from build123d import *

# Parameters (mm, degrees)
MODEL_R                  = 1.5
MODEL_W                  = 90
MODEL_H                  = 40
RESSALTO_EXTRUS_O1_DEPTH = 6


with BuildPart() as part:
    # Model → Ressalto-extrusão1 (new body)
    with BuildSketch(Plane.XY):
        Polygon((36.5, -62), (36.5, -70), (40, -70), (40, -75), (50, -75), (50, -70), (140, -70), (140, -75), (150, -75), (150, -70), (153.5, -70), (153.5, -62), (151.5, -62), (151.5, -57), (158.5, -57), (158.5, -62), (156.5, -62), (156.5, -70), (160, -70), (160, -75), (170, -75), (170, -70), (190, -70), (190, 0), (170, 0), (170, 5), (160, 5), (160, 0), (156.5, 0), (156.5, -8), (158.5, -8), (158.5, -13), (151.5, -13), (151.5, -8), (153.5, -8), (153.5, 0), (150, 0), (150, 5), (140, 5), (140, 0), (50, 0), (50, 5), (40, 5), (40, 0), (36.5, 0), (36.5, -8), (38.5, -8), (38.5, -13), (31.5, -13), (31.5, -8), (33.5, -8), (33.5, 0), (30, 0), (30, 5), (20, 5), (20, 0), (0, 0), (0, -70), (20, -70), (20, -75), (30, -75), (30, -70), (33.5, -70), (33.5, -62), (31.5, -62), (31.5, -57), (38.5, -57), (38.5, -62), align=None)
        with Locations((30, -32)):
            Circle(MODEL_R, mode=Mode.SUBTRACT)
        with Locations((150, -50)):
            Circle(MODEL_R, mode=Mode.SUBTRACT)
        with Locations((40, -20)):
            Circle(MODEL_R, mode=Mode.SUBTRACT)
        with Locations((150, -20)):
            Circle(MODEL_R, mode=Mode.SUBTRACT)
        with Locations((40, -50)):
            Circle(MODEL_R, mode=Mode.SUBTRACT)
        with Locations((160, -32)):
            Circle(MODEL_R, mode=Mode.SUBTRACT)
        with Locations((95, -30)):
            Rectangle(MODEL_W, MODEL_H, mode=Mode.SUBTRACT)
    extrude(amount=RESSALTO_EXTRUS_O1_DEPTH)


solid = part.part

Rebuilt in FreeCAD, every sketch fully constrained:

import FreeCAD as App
import Part
import Sketcher


def add_polygon(sketch, points):
    """Adds a closed chain of lines whose ends are joined by coincident constraints."""
    first, n = sketch.GeometryCount, len(points)
    for a, b in zip(points, points[1:] + points[:1]):
        sketch.addGeometry(Part.LineSegment(App.Vector(*a, 0), App.Vector(*b, 0)), False)
    for i in range(n):
        sketch.addConstraint(Sketcher.Constraint("Coincident", first + i, 2, first + (i + 1) % n, 1))

doc = App.newDocument("Part")
body = doc.addObject("PartDesign::Body", "Body")

# Sketch on XY plane
sketch1 = body.newObject("Sketcher::SketchObject", "Sketch")
sketch1.AttachmentSupport = (doc.getObject("XY_Plane"), [""])
sketch1.MapMode = "FlatFace"
add_polygon(sketch1, [(36.5, -62), (36.5, -70), (40, -70), (40, -75), (50, -75), (50, -70), (140, -70), (140, -75), (150, -75), (150, -70), (153.5, -70), (153.5, -62), (151.5, -62), (151.5, -57), (158.5, -57), (158.5, -62), (156.5, -62), (156.5, -70), (160, -70), (160, -75), (170, -75), (170, -70), (190, -70), (190, 0), (170, 0), (170, 5), (160, 5), (160, 0), (156.5, 0), (156.5, -8), (158.5, -8), (158.5, -13), (151.5, -13), (151.5, -8), (153.5, -8), (153.5, 0), (150, 0), (150, 5), (140, 5), (140, 0), (50, 0), (50, 5), (40, 5), (40, 0), (36.5, 0), (36.5, -8), (38.5, -8), (38.5, -13), (31.5, -13), (31.5, -8), (33.5, -8), (33.5, 0), (30, 0), (30, 5), (20, 5), (20, 0), (0, 0), (0, -70), (20, -70), (20, -75), (30, -75), (30, -70), (33.5, -70), (33.5, -62), (31.5, -62), (31.5, -57), (38.5, -57), (38.5, -62)])  # lines 0-67
sketch1.addGeometry(Part.Circle(App.Vector(40, -50, 0), App.Vector(0, 0, 1), 1.5), False)  # 68
sketch1.addGeometry(Part.Circle(App.Vector(30, -32, 0), App.Vector(0, 0, 1), 1.5), False)  # 69
sketch1.addGeometry(Part.Circle(App.Vector(150, -50, 0), App.Vector(0, 0, 1), 1.5), False)  # 70
sketch1.addGeometry(Part.Circle(App.Vector(160, -32, 0), App.Vector(0, 0, 1), 1.5), False)  # 71
sketch1.addGeometry(Part.Circle(App.Vector(40, -20, 0), App.Vector(0, 0, 1), 1.5), False)  # 72
add_polygon(sketch1, [(140, -50), (50, -50), (50, -10), (140, -10)])  # lines 73-76
sketch1.addGeometry(Part.Circle(App.Vector(150, -20, 0), App.Vector(0, 0, 1), 1.5), False)  # 77
sketch1.addConstraint(Sketcher.Constraint("Vertical", 0))
sketch1.addConstraint(Sketcher.Constraint("Horizontal", 1))
sketch1.addConstraint(Sketcher.Constraint("Vertical", 2))
sketch1.addConstraint(Sketcher.Constraint("Horizontal", 3))
sketch1.addConstraint(Sketcher.Constraint("Vertical", 4))
sketch1.addConstraint(Sketcher.Constraint("Horizontal", 5))
sketch1.addConstraint(Sketcher.Constraint("Vertical", 6))
sketch1.addConstraint(Sketcher.Constraint("Horizontal", 7))
sketch1.addConstraint(Sketcher.Constraint("Vertical", 8))
sketch1.addConstraint(Sketcher.Constraint("Horizontal", 9))
sketch1.addConstraint(Sketcher.Constraint("Vertical", 10))
sketch1.addConstraint(Sketcher.Constraint("Horizontal", 11))
sketch1.addConstraint(Sketcher.Constraint("Vertical", 12))
sketch1.addConstraint(Sketcher.Constraint("Horizontal", 13))
sketch1.addConstraint(Sketcher.Constraint("Vertical", 14))
sketch1.addConstraint(Sketcher.Constraint("Horizontal", 15))
sketch1.addConstraint(Sketcher.Constraint("Vertical", 16))
sketch1.addConstraint(Sketcher.Constraint("Horizontal", 17))
sketch1.addConstraint(Sketcher.Constraint("Vertical", 18))
sketch1.addConstraint(Sketcher.Constraint("Horizontal", 19))
sketch1.addConstraint(Sketcher.Constraint("Vertical", 20))
sketch1.addConstraint(Sketcher.Constraint("Horizontal", 21))
sketch1.addConstraint(Sketcher.Constraint("Vertical", 22))
sketch1.addConstraint(Sketcher.Constraint("Horizontal", 23))
sketch1.addConstraint(Sketcher.Constraint("Vertical", 24))
sketch1.addConstraint(Sketcher.Constraint("Horizontal", 25))
sketch1.addConstraint(Sketcher.Constraint("Vertical", 26))
sketch1.addConstraint(Sketcher.Constraint("Horizontal", 27))
sketch1.addConstraint(Sketcher.Constraint("Vertical", 28))
sketch1.addConstraint(Sketcher.Constraint("Horizontal", 29))
sketch1.addConstraint(Sketcher.Constraint("Vertical", 30))
sketch1.addConstraint(Sketcher.Constraint("Horizontal", 31))
sketch1.addConstraint(Sketcher.Constraint("Vertical", 32))
sketch1.addConstraint(Sketcher.Constraint("Horizontal", 33))
sketch1.addConstraint(Sketcher.Constraint("Vertical", 34))
sketch1.addConstraint(Sketcher.Constraint("Horizontal", 35))
sketch1.addConstraint(Sketcher.Constraint("Vertical", 36))
sketch1.addConstraint(Sketcher.Constraint("Horizontal", 37))
sketch1.addConstraint(Sketcher.Constraint("Vertical", 38))
sketch1.addConstraint(Sketcher.Constraint("Horizontal", 39))
sketch1.addConstraint(Sketcher.Constraint("Vertical", 40))
sketch1.addConstraint(Sketcher.Constraint("Horizontal", 41))
sketch1.addConstraint(Sketcher.Constraint("Vertical", 42))
sketch1.addConstraint(Sketcher.Constraint("Horizontal", 43))
sketch1.addConstraint(Sketcher.Constraint("Vertical", 44))
sketch1.addConstraint(Sketcher.Constraint("Horizontal", 45))
sketch1.addConstraint(Sketcher.Constraint("Vertical", 46))
sketch1.addConstraint(Sketcher.Constraint("Horizontal", 47))
sketch1.addConstraint(Sketcher.Constraint("Vertical", 48))
sketch1.addConstraint(Sketcher.Constraint("Horizontal", 49))
sketch1.addConstraint(Sketcher.Constraint("Vertical", 50))
sketch1.addConstraint(Sketcher.Constraint("Horizontal", 51))
sketch1.addConstraint(Sketcher.Constraint("Vertical", 52))
sketch1.addConstraint(Sketcher.Constraint("Horizontal", 53))
sketch1.addConstraint(Sketcher.Constraint("Vertical", 54))
sketch1.addConstraint(Sketcher.Constraint("Horizontal", 55))
sketch1.addConstraint(Sketcher.Constraint("Vertical", 56))
sketch1.addConstraint(Sketcher.Constraint("Horizontal", 57))
sketch1.addConstraint(Sketcher.Constraint("Vertical", 58))
sketch1.addConstraint(Sketcher.Constraint("Horizontal", 59))
sketch1.addConstraint(Sketcher.Constraint("Vertical", 60))
sketch1.addConstraint(Sketcher.Constraint("Horizontal", 61))
sketch1.addConstraint(Sketcher.Constraint("Vertical", 62))
sketch1.addConstraint(Sketcher.Constraint("Horizontal", 63))
sketch1.addConstraint(Sketcher.Constraint("Vertical", 64))
sketch1.addConstraint(Sketcher.Constraint("Horizontal", 65))
sketch1.addConstraint(Sketcher.Constraint("Vertical", 66))
sketch1.addConstraint(Sketcher.Constraint("Horizontal", 67))
sketch1.addConstraint(Sketcher.Constraint("Horizontal", 73))
sketch1.addConstraint(Sketcher.Constraint("Vertical", 74))
sketch1.addConstraint(Sketcher.Constraint("Horizontal", 75))
sketch1.addConstraint(Sketcher.Constraint("Vertical", 76))
sketch1.addConstraint(Sketcher.Constraint("Coincident", 55, 2, -1, 1))
sketch1.addConstraint(Sketcher.Constraint("Equal", 68, 69))
sketch1.addConstraint(Sketcher.Constraint("Equal", 69, 70))
sketch1.addConstraint(Sketcher.Constraint("Equal", 70, 71))
sketch1.addConstraint(Sketcher.Constraint("Equal", 71, 72))
sketch1.addConstraint(Sketcher.Constraint("Equal", 72, 77))
sketch1.addConstraint(Sketcher.Constraint("PointOnObject", 22, 2, -1))
sketch1.addConstraint(Sketcher.Constraint("PointOnObject", 26, 2, -1))
sketch1.addConstraint(Sketcher.Constraint("PointOnObject", 34, 2, -1))
sketch1.addConstraint(Sketcher.Constraint("PointOnObject", 38, 2, -1))
sketch1.addConstraint(Sketcher.Constraint("PointOnObject", 42, 2, -1))
sketch1.addConstraint(Sketcher.Constraint("PointOnObject", 50, 2, -1))
sketch1.addConstraint(Sketcher.Constraint("Horizontal", 68, 3, 70, 3))
sketch1.addConstraint(Sketcher.Constraint("Horizontal", 69, 3, 71, 3))
sketch1.addConstraint(Sketcher.Constraint("Horizontal", 72, 3, 77, 3))
sketch1.addConstraint(Sketcher.Constraint("Horizontal", 1, 2, 4, 2))
sketch1.addConstraint(Sketcher.Constraint("Horizontal", 3, 2, 6, 2))
sketch1.addConstraint(Sketcher.Constraint("Horizontal", 5, 2, 8, 2))
sketch1.addConstraint(Sketcher.Constraint("Horizontal", 11, 2, 14, 2))
sketch1.addConstraint(Sketcher.Constraint("Horizontal", 9, 2, 16, 2))
sketch1.addConstraint(Sketcher.Constraint("Horizontal", 7, 2, 18, 2))
sketch1.addConstraint(Sketcher.Constraint("Horizontal", 17, 2, 20, 2))
sketch1.addConstraint(Sketcher.Constraint("Horizontal", 29, 2, 32, 2))
sketch1.addConstraint(Sketcher.Constraint("Horizontal", 25, 2, 36, 2))
sketch1.addConstraint(Sketcher.Constraint("Horizontal", 37, 2, 40, 2))
sketch1.addConstraint(Sketcher.Constraint("Horizontal", 33, 2, 44, 2))
sketch1.addConstraint(Sketcher.Constraint("Horizontal", 31, 2, 46, 2))
sketch1.addConstraint(Sketcher.Constraint("Horizontal", 45, 2, 48, 2))
sketch1.addConstraint(Sketcher.Constraint("Horizontal", 41, 2, 52, 2))
sketch1.addConstraint(Sketcher.Constraint("Horizontal", 21, 2, 56, 2))
sketch1.addConstraint(Sketcher.Constraint("Horizontal", 19, 2, 58, 2))
sketch1.addConstraint(Sketcher.Constraint("Horizontal", 57, 2, 60, 2))
sketch1.addConstraint(Sketcher.Constraint("Horizontal", 15, 2, 62, 2))
sketch1.addConstraint(Sketcher.Constraint("Horizontal", 13, 2, 64, 2))
sketch1.addConstraint(Sketcher.Constraint("Horizontal", 63, 2, 66, 2))
sketch1.addConstraint(Sketcher.Constraint("Horizontal", 70, 3, 73, 2))
sketch1.addConstraint(Sketcher.Constraint("Vertical", 68, 3, 72, 3))
sketch1.addConstraint(Sketcher.Constraint("Vertical", 70, 3, 77, 3))
sketch1.addConstraint(Sketcher.Constraint("Vertical", 72, 3, 1, 2))
sketch1.addConstraint(Sketcher.Constraint("Vertical", 77, 3, 7, 2))
sketch1.addConstraint(Sketcher.Constraint("Vertical", 71, 3, 17, 2))
sketch1.addConstraint(Sketcher.Constraint("Vertical", 20, 2, 23, 2))
sketch1.addConstraint(Sketcher.Constraint("Vertical", 18, 2, 25, 2))
sketch1.addConstraint(Sketcher.Constraint("Vertical", 16, 2, 27, 2))
sketch1.addConstraint(Sketcher.Constraint("Vertical", 14, 2, 29, 2))
sketch1.addConstraint(Sketcher.Constraint("Vertical", 12, 2, 31, 2))
sketch1.addConstraint(Sketcher.Constraint("Vertical", 10, 2, 33, 2))
sketch1.addConstraint(Sketcher.Constraint("Vertical", 8, 2, 35, 2))
sketch1.addConstraint(Sketcher.Constraint("Vertical", 6, 2, 37, 2))
sketch1.addConstraint(Sketcher.Constraint("Vertical", 4, 2, 39, 2))
sketch1.addConstraint(Sketcher.Constraint("Vertical", 2, 2, 41, 2))
sketch1.addConstraint(Sketcher.Constraint("Vertical", 0, 2, 43, 2))
sketch1.addConstraint(Sketcher.Constraint("Vertical", 69, 3, 51, 2))
sketch1.addConstraint(Sketcher.Constraint("Vertical", 54, 2, 57, 2))
sketch1.addConstraint(Sketcher.Constraint("Vertical", 52, 2, 59, 2))
sketch1.addConstraint(Sketcher.Constraint("Vertical", 50, 2, 61, 2))
sketch1.addConstraint(Sketcher.Constraint("Vertical", 48, 2, 63, 2))
sketch1.addConstraint(Sketcher.Constraint("Vertical", 46, 2, 65, 2))
sketch1.addConstraint(Sketcher.Constraint("Vertical", 40, 2, 73, 2))
sketch1.addConstraint(Sketcher.Constraint("Vertical", 38, 2, 75, 2))
sketch1.addConstraint(Sketcher.Constraint("Equal", 3, 7))
sketch1.addConstraint(Sketcher.Constraint("Equal", 1, 9))
sketch1.addConstraint(Sketcher.Constraint("Equal", 11, 15))
sketch1.addConstraint(Sketcher.Constraint("Equal", 9, 17))
sketch1.addConstraint(Sketcher.Constraint("Equal", 7, 19))
sketch1.addConstraint(Sketcher.Constraint("Equal", 33, 45))
sketch1.addConstraint(Sketcher.Constraint("Equal", 31, 47))
sketch1.addConstraint(Sketcher.Constraint("Equal", 45, 49))
sketch1.addConstraint(Sketcher.Constraint("Equal", 43, 51))
sketch1.addConstraint(Sketcher.Constraint("Equal", 41, 53))
sketch1.addConstraint(Sketcher.Constraint("Equal", 23, 55))
sketch1.addConstraint(Sketcher.Constraint("Equal", 8, 12))
sketch1.addConstraint(Sketcher.Constraint("Equal", 20, 24))
sketch1.addConstraint(Sketcher.Constraint("Equal", 16, 28))
sketch1.addConstraint(Sketcher.Constraint("Equal", 26, 30))
sketch1.addConstraint(Sketcher.Constraint("Diameter", 68, 3.0))
sketch1.addConstraint(Sketcher.Constraint("DistanceX", 3, 1, 3, 2, 10.0))
sketch1.addConstraint(Sketcher.Constraint("DistanceX", 5, 1, 5, 2, 90.0))
sketch1.addConstraint(Sketcher.Constraint("DistanceX", 11, 2, 11, 1, 2.0))
sketch1.addConstraint(Sketcher.Constraint("DistanceX", 13, 1, 13, 2, 7.0))
sketch1.addConstraint(Sketcher.Constraint("DistanceX", 21, 1, 21, 2, 20.0))
sketch1.addConstraint(Sketcher.Constraint("DistanceY", 0, 2, 0, 1, 8.0))
sketch1.addConstraint(Sketcher.Constraint("DistanceY", 2, 2, 2, 1, 5.0))
sketch1.addConstraint(Sketcher.Constraint("DistanceY", 22, 1, 22, 2, 70.0))
sketch1.addConstraint(Sketcher.Constraint("DistanceY", 74, 1, 74, 2, 40.0))
sketch1.addConstraint(Sketcher.Constraint("DistanceX", 1, 1, 1, 2, 3.5))
sketch1.addConstraint(Sketcher.Constraint("DistanceY", 68, 3, -1, 1, 50.0))
sketch1.addConstraint(Sketcher.Constraint("DistanceY", 69, 3, -1, 1, 32.0))
sketch1.addConstraint(Sketcher.Constraint("DistanceY", 72, 3, -1, 1, 20.0))
pad1 = body.newObject("PartDesign::Pad", "Pad")
pad1.Profile = sketch1
pad1.Length = 6

doc.recompute()
